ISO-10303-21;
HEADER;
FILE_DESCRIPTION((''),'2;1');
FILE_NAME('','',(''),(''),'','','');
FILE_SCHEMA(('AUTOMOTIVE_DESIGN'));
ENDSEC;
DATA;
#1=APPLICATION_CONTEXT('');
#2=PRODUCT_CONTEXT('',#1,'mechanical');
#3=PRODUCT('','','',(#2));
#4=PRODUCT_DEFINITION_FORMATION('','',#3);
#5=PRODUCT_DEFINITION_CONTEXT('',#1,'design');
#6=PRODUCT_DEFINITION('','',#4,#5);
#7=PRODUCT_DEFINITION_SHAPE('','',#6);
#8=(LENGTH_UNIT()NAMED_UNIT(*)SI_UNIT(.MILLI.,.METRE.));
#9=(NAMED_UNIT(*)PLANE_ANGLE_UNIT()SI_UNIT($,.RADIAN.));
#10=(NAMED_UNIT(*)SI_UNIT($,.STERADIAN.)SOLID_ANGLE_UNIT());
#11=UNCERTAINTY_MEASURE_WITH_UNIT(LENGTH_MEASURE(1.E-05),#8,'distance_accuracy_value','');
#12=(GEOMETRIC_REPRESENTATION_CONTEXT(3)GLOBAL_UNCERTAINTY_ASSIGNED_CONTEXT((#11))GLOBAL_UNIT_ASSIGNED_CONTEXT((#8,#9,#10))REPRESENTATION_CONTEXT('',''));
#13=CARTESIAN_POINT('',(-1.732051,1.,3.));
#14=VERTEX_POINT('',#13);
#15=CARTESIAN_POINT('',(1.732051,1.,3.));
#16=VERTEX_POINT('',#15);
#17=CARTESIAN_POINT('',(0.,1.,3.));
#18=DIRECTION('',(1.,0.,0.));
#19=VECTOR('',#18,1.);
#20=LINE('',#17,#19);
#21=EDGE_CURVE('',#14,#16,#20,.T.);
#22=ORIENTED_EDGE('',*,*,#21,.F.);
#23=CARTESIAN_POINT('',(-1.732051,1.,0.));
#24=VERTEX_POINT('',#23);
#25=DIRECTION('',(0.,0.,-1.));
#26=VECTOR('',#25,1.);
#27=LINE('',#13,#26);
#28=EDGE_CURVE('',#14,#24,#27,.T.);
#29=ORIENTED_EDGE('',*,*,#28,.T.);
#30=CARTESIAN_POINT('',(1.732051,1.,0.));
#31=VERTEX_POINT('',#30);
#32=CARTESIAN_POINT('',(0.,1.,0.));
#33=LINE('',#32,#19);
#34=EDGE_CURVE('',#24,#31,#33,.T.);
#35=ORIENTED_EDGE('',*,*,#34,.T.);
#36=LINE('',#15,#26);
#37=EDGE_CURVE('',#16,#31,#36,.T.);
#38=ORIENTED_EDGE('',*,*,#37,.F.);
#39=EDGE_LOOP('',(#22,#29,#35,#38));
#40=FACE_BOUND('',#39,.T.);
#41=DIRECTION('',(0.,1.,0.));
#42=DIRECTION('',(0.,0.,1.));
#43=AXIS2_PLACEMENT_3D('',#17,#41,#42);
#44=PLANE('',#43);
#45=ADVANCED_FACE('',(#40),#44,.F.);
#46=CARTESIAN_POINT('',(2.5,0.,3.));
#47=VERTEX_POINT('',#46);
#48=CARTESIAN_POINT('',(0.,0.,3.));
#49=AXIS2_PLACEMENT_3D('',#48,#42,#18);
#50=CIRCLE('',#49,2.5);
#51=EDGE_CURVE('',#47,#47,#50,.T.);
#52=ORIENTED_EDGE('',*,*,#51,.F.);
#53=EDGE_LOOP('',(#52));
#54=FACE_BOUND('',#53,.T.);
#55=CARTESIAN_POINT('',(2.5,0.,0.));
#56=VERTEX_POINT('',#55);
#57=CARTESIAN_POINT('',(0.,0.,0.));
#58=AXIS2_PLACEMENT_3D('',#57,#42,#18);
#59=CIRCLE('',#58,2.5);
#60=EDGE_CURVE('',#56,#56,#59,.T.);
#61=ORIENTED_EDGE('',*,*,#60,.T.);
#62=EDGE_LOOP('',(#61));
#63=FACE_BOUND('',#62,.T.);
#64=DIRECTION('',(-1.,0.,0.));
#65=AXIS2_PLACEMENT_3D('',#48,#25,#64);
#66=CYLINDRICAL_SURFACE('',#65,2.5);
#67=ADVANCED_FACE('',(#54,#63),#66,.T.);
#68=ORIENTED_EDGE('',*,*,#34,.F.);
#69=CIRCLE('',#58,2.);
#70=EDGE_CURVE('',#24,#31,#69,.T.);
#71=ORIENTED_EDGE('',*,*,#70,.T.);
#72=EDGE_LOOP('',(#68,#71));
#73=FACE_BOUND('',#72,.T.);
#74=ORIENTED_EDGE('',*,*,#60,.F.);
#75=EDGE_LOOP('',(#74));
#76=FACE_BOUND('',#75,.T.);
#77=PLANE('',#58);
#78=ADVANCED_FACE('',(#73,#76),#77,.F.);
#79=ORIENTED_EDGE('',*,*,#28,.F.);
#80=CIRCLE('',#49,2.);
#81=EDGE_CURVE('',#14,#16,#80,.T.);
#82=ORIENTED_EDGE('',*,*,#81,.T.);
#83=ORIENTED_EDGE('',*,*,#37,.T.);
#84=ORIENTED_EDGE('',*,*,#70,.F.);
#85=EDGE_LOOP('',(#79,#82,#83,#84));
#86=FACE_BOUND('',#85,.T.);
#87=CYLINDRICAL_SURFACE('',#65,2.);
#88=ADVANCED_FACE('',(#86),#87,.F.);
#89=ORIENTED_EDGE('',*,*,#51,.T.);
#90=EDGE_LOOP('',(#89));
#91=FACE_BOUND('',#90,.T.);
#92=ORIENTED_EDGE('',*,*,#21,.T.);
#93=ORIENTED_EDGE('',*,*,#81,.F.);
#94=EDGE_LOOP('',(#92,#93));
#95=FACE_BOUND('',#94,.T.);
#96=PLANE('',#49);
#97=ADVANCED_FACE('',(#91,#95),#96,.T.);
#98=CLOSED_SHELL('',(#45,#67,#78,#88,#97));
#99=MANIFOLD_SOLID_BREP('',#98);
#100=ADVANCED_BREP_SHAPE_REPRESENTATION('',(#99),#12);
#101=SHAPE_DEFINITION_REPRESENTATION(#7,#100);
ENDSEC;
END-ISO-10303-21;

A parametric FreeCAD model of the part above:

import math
import FreeCAD as App
import Part
import Sketcher
Q = App.Units.Quantity

doc = App.newDocument("Part")
body = doc.addObject("PartDesign::Body", "Body")

sketch1 = body.newObject("Sketcher::SketchObject", "Sketch")
sketch1.AttachmentSupport = (doc.getObject("XY_Plane"), [""])
sketch1.MapMode = "FlatFace"
sketch1.addGeometry([
    Part.Circle(App.Vector(0, 0, 0), App.Vector(0, 0, 1), 2.5),
    Part.LineSegment(App.Vector(-1.7, 1, 0), App.Vector(1.7, 1, 0)),
    Part.ArcOfCircle(Part.Circle(App.Vector(0, 0, 0), App.Vector(0, 0, 1), 2), math.radians(150), math.radians(390)),
], False)
sketch1.addConstraint([
    Sketcher.Constraint("Coincident", 1, 1, 2, 1),
    Sketcher.Constraint("Coincident", 2, 2, 1, 2),
    Sketcher.Constraint("Horizontal", 1),
    Sketcher.Constraint("Coincident", 0, 3, -1, 1),
    Sketcher.Constraint("Coincident", 2, 3, -1, 1),
    Sketcher.Constraint("Diameter", 0, Q("5 mm")),
    Sketcher.Constraint("Radius", 2, Q("2 mm")),
    Sketcher.Constraint("DistanceY", -1, 1, 1, 1, Q("1 mm")),
])
pad1 = body.newObject("PartDesign::Pad", "Pad")
pad1.Profile = sketch1
pad1.Length = 3

doc.recompute()
